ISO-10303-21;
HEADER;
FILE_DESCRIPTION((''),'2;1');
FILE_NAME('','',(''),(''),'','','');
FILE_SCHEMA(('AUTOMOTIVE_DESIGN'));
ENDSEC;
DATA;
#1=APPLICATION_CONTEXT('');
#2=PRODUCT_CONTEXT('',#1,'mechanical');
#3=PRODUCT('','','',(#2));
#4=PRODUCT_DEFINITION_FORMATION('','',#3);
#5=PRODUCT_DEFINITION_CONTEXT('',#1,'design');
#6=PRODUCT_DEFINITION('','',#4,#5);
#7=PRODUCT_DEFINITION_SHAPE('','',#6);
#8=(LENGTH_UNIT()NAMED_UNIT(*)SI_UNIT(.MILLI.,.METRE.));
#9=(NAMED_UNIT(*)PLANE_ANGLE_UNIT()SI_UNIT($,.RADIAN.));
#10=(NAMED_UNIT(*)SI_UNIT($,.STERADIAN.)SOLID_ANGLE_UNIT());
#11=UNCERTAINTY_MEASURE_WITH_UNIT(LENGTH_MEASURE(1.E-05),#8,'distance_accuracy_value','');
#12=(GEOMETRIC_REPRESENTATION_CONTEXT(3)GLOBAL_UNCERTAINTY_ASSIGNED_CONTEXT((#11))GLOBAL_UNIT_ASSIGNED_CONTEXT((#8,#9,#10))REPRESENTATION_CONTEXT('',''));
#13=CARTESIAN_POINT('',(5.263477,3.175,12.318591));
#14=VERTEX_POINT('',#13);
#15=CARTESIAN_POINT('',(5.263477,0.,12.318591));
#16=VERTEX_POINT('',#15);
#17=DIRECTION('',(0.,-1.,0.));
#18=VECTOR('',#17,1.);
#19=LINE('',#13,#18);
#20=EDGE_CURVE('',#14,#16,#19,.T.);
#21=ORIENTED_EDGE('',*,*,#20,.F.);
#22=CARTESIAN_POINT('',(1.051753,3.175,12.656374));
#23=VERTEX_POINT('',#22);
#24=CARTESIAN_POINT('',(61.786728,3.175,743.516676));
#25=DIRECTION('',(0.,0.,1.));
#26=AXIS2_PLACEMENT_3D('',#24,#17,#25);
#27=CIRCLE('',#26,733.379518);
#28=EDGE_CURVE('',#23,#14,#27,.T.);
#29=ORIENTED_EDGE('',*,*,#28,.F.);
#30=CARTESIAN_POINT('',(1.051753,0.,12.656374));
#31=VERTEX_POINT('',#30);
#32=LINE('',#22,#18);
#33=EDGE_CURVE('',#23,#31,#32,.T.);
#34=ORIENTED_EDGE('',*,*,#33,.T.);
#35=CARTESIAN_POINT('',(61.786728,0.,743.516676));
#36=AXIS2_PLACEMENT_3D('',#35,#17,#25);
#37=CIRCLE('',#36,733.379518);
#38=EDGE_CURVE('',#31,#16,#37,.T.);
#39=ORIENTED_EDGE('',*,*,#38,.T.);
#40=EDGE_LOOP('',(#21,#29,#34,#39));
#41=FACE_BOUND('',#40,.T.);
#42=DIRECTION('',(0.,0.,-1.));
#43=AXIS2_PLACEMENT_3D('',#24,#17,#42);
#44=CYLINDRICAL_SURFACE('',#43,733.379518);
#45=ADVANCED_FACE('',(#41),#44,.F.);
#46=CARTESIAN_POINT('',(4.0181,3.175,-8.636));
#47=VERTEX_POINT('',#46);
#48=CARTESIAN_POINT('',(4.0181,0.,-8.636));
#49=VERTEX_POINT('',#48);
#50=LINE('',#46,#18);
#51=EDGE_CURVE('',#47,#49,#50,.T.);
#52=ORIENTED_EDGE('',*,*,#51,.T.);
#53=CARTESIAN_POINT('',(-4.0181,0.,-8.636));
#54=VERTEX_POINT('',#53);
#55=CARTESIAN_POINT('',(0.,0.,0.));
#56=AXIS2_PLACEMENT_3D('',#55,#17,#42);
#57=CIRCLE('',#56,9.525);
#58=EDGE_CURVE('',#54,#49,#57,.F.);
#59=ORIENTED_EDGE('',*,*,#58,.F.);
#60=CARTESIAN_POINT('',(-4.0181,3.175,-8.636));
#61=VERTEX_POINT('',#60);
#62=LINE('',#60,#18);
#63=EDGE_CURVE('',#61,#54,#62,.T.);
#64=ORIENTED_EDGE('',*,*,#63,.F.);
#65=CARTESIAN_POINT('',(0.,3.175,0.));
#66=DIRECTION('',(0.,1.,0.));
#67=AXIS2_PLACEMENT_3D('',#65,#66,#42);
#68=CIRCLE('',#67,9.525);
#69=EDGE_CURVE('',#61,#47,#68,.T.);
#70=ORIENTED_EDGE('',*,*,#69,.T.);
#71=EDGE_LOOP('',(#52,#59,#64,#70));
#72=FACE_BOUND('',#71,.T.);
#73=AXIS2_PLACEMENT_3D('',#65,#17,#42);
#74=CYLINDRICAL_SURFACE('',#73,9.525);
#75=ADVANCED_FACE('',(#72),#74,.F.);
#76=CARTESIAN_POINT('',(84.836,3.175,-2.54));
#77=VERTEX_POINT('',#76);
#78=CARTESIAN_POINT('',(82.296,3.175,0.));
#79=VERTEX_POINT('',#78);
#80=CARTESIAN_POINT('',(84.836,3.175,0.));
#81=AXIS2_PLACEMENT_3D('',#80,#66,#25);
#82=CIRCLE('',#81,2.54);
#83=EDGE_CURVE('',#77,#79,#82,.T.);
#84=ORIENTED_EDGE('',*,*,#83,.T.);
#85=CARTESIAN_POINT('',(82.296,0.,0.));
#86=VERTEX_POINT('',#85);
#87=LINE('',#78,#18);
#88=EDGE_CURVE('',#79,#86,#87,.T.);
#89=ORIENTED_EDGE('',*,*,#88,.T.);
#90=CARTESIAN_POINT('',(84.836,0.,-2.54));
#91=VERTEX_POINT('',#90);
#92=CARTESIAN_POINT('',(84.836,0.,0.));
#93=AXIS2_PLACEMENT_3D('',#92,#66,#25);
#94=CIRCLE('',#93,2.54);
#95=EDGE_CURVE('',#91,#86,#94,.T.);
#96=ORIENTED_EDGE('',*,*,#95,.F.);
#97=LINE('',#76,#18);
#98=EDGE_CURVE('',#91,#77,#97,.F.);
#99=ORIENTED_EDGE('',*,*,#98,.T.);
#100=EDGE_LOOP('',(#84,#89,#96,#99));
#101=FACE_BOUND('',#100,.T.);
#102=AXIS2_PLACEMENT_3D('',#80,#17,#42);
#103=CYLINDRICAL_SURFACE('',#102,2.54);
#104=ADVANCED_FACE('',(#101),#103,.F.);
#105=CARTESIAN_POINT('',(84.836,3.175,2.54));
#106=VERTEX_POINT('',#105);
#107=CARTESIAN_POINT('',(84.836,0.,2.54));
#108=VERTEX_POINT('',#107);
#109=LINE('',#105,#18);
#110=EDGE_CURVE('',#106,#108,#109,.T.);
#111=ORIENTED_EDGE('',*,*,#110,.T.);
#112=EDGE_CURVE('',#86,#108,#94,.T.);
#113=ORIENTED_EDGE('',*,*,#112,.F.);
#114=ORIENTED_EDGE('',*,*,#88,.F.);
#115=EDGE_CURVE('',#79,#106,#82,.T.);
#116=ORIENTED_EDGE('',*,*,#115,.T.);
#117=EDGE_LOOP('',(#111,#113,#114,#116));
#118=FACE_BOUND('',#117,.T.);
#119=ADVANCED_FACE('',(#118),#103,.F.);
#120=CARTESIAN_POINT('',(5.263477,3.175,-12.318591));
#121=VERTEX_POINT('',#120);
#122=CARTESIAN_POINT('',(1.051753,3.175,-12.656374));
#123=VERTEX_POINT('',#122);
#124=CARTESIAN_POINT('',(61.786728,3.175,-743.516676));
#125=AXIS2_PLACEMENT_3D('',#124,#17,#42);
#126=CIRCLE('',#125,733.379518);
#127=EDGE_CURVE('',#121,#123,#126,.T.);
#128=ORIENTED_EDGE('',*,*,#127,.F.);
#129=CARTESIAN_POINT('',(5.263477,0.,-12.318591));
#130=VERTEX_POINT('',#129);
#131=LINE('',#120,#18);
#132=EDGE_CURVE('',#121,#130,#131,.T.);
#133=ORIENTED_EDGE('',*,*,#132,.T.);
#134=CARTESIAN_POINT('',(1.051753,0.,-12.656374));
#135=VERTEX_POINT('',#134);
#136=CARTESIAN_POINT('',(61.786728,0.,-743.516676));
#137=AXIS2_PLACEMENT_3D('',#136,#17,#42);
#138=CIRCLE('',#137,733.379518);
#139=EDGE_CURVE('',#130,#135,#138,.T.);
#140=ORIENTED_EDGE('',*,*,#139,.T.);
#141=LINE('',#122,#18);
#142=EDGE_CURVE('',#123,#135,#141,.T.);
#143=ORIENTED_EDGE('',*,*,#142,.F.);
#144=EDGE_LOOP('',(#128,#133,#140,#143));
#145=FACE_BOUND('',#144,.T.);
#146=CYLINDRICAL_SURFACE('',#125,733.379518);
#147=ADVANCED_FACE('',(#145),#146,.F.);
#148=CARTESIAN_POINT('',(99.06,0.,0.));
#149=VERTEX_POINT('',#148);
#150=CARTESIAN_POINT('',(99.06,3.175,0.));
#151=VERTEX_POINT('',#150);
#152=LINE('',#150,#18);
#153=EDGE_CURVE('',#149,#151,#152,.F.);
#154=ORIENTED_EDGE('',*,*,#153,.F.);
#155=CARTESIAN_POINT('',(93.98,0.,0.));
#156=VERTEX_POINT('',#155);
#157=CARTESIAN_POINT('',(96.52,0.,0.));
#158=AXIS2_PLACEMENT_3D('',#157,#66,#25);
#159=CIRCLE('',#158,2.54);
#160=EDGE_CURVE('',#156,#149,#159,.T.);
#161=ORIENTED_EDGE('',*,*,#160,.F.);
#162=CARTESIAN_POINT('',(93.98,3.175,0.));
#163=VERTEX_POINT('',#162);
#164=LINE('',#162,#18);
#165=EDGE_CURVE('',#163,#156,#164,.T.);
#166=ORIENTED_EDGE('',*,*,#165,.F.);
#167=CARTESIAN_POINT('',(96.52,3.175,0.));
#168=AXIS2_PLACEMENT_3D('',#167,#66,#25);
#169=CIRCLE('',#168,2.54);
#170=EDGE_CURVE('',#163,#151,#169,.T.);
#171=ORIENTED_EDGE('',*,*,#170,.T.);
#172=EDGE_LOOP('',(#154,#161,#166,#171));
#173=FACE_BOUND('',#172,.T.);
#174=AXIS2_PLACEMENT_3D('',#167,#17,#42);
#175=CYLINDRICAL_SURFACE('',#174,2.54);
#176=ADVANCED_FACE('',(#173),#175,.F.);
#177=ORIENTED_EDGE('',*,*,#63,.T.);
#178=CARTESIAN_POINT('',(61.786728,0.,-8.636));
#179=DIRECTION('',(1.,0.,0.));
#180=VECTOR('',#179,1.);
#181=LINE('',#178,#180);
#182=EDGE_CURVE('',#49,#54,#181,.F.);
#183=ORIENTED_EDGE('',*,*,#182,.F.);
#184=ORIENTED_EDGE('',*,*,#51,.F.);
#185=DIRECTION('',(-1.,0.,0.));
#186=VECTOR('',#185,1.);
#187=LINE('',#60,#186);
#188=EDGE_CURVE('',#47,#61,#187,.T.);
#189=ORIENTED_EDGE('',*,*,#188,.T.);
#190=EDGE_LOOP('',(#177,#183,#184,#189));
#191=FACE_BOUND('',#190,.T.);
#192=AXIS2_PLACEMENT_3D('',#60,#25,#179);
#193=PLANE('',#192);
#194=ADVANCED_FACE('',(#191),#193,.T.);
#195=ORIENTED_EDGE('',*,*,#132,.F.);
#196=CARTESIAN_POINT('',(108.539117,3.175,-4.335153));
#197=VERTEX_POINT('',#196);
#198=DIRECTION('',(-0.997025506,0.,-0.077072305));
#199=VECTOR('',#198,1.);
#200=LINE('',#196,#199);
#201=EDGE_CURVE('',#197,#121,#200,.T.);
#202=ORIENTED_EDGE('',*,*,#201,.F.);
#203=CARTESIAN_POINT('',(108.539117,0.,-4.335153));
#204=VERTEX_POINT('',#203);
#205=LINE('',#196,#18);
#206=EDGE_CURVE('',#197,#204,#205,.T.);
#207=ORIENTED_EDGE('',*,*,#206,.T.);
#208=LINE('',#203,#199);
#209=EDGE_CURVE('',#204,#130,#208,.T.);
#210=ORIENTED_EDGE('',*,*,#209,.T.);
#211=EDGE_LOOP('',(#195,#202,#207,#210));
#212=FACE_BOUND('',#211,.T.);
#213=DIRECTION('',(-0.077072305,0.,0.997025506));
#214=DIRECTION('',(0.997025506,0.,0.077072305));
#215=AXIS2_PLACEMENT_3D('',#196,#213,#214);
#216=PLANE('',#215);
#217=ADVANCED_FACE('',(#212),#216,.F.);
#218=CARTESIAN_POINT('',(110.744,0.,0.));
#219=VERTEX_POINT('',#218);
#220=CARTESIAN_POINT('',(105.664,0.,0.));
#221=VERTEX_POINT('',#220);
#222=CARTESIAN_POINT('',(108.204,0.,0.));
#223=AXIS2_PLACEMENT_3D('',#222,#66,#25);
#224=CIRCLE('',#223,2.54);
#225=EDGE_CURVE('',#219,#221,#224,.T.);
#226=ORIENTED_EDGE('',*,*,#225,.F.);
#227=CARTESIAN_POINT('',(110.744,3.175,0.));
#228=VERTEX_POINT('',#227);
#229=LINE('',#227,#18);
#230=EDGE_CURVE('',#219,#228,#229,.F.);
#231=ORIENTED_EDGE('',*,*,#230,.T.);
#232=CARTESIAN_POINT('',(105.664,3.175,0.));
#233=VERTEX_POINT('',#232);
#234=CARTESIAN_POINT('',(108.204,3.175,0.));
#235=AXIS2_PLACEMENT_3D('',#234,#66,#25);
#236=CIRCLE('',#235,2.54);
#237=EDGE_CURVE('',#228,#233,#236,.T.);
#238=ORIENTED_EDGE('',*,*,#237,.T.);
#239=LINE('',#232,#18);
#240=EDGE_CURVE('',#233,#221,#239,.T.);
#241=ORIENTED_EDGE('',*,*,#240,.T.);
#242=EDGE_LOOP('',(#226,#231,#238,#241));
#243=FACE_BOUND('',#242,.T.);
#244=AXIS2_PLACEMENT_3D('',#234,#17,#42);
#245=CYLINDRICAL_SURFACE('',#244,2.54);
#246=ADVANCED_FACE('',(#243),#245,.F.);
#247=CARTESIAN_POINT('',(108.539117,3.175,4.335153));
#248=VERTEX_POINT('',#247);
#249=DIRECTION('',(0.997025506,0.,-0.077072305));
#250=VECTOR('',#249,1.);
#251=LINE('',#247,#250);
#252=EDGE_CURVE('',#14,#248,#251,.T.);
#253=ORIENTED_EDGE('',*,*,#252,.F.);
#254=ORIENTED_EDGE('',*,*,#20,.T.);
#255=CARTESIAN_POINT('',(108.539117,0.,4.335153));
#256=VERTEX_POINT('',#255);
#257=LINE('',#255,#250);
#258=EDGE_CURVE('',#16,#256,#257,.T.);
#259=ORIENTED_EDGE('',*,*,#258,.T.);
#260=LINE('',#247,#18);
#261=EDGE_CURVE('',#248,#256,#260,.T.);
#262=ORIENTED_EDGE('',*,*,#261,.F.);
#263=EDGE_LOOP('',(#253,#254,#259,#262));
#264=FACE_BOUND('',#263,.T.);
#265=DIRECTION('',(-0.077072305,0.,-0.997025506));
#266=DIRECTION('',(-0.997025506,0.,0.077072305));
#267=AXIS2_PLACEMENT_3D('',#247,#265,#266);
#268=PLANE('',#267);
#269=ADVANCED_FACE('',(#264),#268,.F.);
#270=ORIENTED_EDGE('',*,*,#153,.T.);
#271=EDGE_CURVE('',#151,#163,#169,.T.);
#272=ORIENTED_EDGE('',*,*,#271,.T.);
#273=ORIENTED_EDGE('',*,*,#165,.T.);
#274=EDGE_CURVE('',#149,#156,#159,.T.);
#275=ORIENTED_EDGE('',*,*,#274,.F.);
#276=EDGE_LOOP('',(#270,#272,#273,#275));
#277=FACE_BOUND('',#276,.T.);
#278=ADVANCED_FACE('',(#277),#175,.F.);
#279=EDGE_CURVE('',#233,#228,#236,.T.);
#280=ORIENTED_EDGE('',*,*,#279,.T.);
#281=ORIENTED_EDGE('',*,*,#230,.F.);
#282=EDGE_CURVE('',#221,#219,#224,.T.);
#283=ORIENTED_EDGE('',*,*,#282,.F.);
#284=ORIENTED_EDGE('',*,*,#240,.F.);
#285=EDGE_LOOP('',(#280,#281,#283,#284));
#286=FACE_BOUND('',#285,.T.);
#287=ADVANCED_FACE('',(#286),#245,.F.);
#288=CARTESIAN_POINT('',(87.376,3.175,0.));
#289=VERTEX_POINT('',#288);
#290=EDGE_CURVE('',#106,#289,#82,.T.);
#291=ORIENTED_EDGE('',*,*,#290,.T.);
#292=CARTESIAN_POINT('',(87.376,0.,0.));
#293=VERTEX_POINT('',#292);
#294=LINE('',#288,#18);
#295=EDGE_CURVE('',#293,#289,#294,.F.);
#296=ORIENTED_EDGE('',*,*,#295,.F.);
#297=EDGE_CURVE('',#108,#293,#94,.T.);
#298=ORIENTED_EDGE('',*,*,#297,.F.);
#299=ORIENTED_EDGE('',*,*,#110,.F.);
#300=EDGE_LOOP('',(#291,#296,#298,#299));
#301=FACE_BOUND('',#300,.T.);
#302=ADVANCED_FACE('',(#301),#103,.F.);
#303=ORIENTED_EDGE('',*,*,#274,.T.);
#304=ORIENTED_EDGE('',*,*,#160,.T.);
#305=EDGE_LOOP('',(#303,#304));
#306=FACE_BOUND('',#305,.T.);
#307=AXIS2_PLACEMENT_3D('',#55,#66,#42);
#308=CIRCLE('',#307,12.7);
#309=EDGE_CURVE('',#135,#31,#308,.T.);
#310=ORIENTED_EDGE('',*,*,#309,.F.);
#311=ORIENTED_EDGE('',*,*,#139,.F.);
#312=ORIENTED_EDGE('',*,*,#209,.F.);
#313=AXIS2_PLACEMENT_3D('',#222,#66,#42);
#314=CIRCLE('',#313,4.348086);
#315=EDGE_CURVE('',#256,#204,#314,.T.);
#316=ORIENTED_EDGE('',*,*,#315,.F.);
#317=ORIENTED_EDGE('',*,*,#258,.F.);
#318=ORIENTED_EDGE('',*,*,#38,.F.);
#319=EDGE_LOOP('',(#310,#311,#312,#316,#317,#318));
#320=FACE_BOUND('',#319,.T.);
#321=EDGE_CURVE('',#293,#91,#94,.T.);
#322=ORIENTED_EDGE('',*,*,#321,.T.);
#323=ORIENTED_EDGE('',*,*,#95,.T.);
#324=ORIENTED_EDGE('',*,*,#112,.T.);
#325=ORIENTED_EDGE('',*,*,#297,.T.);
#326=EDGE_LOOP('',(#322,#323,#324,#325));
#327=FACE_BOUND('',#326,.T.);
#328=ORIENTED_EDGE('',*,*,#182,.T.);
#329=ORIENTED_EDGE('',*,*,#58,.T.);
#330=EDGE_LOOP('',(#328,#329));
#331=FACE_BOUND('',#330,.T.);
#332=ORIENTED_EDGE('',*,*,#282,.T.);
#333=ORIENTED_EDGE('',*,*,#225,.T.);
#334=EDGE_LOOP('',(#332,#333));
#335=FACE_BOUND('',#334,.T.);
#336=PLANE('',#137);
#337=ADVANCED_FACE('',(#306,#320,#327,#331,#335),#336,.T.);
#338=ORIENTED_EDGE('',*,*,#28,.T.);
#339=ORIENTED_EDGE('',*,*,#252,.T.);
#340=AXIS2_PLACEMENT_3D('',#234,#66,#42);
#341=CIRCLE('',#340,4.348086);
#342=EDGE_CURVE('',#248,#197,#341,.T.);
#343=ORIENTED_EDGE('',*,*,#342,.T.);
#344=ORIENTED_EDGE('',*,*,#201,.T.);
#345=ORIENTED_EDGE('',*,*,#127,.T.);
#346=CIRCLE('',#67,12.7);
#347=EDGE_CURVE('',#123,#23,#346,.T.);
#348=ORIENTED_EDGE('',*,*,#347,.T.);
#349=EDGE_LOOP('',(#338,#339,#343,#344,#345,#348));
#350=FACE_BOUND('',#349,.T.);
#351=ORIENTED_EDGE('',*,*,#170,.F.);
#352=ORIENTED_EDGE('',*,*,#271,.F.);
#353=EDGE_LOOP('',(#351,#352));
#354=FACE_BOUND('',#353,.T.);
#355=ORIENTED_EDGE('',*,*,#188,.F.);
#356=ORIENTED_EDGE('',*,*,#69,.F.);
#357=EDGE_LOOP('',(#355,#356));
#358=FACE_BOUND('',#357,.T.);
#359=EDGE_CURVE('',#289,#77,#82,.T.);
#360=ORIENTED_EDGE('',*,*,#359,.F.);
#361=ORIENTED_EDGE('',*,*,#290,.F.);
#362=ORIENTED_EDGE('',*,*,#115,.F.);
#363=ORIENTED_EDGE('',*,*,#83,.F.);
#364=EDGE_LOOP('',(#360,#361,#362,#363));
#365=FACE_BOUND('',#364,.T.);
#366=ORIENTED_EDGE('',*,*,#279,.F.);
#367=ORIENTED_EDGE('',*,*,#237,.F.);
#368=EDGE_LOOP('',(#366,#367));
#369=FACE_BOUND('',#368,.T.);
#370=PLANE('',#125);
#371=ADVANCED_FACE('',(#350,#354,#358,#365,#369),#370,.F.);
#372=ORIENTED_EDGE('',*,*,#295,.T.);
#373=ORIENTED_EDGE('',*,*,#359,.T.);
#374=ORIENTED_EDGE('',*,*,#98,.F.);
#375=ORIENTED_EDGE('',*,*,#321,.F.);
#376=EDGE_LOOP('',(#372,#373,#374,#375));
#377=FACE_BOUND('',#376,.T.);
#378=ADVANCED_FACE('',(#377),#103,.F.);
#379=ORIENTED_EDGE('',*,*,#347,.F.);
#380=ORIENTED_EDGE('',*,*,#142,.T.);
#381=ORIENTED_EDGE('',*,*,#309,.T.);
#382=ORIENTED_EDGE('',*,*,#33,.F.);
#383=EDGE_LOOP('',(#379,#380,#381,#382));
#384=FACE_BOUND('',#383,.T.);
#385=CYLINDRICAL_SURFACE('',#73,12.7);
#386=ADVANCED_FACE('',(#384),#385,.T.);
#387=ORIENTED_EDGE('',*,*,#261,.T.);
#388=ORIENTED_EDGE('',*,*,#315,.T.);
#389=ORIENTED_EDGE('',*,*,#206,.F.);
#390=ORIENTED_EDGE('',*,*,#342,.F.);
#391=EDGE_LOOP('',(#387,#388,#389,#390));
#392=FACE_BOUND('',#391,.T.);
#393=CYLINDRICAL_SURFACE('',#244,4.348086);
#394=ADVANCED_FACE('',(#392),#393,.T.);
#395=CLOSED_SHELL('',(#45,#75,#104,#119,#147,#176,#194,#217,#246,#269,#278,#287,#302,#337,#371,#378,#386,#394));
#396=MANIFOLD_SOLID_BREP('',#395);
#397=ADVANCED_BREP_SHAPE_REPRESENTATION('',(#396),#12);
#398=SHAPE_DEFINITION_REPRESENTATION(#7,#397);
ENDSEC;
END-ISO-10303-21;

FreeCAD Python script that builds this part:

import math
import FreeCAD as App
import Part
import Sketcher
Q = App.Units.Quantity

doc = App.newDocument("Part")
params = doc.addObject("Spreadsheet::Sheet", "Params")
for row, (alias, value) in enumerate([
    ("sketch1_diameter", "0.2 in"),
    ("sketch1_radius", "0.5 in"),
    ("pad1_length", "0.125 in"),
    ("sketch2_radius", "0.375 in"),
], start=1):
    params.set(f"A{row}", alias)
    params.set(f"B{row}", "=" + value)
    params.setAlias(f"B{row}", alias)

body = doc.addObject("PartDesign::Body", "Body")

sketch1 = doc.addObject("Sketcher::SketchObject", "Sketch")
body.addObject(sketch1)
sketch1.AttachmentSupport = (doc.XZ_Plane, [""])
sketch1.MapMode = "FlatFace"
sketch1.addGeometry([
    Part.LineSegment(App.Vector(108.5, -4.3, 0), App.Vector(5.3, -12.3, 0)),
    Part.ArcOfCircle(Part.Circle(App.Vector(61.8, -743.5, 0), App.Vector(0, 0, 1), 733.4), math.radians(94.42), math.radians(94.75)),
    Part.ArcOfCircle(Part.Circle(App.Vector(0, 0, 0), App.Vector(0, 0, 1), 12.7), math.radians(85), math.radians(275)),
    Part.ArcOfCircle(Part.Circle(App.Vector(61.8, 743.5, 0), App.Vector(0, 0, 1), 733.4), math.radians(-94.75), math.radians(-94.42)),
    Part.LineSegment(App.Vector(5.3, 12.3, 0), App.Vector(108.5, 4.3, 0)),
    Part.ArcOfCircle(Part.Circle(App.Vector(108.2, 0, 0), App.Vector(0, 0, 1), 4.3), math.radians(-86), math.radians(86)),
    Part.Circle(App.Vector(84.8, 0, 0), App.Vector(0, 0, 1), 2.5),
    Part.Circle(App.Vector(96.5, 0, 0), App.Vector(0, 0, 1), 2.5),
    Part.Circle(App.Vector(108.2, 0, 0), App.Vector(0, 0, 1), 2.5),
], False)
sketch1.addConstraint([
    Sketcher.Constraint("Tangent", 0, 2, 1, 1),
    Sketcher.Constraint("Tangent", 1, 2, 2, 2),
    Sketcher.Constraint("Tangent", 2, 1, 3, 1),
    Sketcher.Constraint("Tangent", 3, 2, 4, 1),
    Sketcher.Constraint("Tangent", 4, 2, 5, 2),
    Sketcher.Constraint("Tangent", 5, 1, 0, 1),
    Sketcher.Constraint("Coincident", 2, 3, -1, 1),
    Sketcher.Constraint("Coincident", 8, 3, 5, 3),
    Sketcher.Constraint("Equal", 1, 3),
    Sketcher.Constraint("Equal", 6, 7),
    Sketcher.Constraint("Equal", 7, 8),
    Sketcher.Constraint("Symmetric", 4, 2, 5, 1, -1),
    Sketcher.Constraint("PointOnObject", 6, 3, -1),
    Sketcher.Constraint("PointOnObject", 7, 3, -1),
    Sketcher.Constraint("Diameter", 6, Q("0.2 in")),
    Sketcher.Constraint("Radius", 2, Q("0.5 in")),
    Sketcher.Constraint("DistanceX", -1, 1, 7, 3, Q("3.8 in")),
    Sketcher.Constraint("DistanceX", -1, 1, 5, 3, Q("4.26 in")),
    Sketcher.Constraint("DistanceX", -1, 1, 6, 3, Q("3.34 in")),
    Sketcher.Constraint("Radius", 1, 733.379689),
    Sketcher.Constraint("Radius", 5, 4.348086),
    Sketcher.Constraint("Distance", 0, 103.583749),
])
sketch1.setExpression("Constraints[14]", "Params.sketch1_diameter")
sketch1.setExpression("Constraints[15]", "Params.sketch1_radius")
pad1 = doc.addObject("PartDesign::Pad", "Pad")
body.addObject(pad1)
pad1.Profile = sketch1
pad1.setExpression("Length", "Params.pad1_length")
pad1.Reversed = True

sketch2 = doc.addObject("Sketcher::SketchObject", "Sketch001")
body.addObject(sketch2)
sketch2.AttachmentSupport = (doc.XZ_Plane, [""])
sketch2.MapMode = "FlatFace"
sketch2.addGeometry([
    Part.LineSegment(App.Vector(4, -9, 0), App.Vector(-4, -9, 0)),
    Part.ArcOfCircle(Part.Circle(App.Vector(0, 0, 0), App.Vector(0, 0, 1), 10), math.radians(-65), math.radians(245)),
], False)
sketch2.addConstraint([
    Sketcher.Constraint("Coincident", 0, 1, 1, 1),
    Sketcher.Constraint("Coincident", 1, 2, 0, 2),
    Sketcher.Constraint("Horizontal", 0),
    Sketcher.Constraint("Coincident", 1, 3, -1, 1),
    Sketcher.Constraint("Radius", 1, Q("0.375 in")),
    Sketcher.Constraint("DistanceY", 0, 1, -1, 1, Q("0.34 in")),
])
sketch2.setExpression("Constraints[4]", "Params.sketch2_radius")
pocket1 = doc.addObject("PartDesign::Pocket", "Pocket")
body.addObject(pocket1)
pocket1.Profile = sketch2
pocket1.Type = "ThroughAll"
pocket1.Midplane = True

doc.recompute()
